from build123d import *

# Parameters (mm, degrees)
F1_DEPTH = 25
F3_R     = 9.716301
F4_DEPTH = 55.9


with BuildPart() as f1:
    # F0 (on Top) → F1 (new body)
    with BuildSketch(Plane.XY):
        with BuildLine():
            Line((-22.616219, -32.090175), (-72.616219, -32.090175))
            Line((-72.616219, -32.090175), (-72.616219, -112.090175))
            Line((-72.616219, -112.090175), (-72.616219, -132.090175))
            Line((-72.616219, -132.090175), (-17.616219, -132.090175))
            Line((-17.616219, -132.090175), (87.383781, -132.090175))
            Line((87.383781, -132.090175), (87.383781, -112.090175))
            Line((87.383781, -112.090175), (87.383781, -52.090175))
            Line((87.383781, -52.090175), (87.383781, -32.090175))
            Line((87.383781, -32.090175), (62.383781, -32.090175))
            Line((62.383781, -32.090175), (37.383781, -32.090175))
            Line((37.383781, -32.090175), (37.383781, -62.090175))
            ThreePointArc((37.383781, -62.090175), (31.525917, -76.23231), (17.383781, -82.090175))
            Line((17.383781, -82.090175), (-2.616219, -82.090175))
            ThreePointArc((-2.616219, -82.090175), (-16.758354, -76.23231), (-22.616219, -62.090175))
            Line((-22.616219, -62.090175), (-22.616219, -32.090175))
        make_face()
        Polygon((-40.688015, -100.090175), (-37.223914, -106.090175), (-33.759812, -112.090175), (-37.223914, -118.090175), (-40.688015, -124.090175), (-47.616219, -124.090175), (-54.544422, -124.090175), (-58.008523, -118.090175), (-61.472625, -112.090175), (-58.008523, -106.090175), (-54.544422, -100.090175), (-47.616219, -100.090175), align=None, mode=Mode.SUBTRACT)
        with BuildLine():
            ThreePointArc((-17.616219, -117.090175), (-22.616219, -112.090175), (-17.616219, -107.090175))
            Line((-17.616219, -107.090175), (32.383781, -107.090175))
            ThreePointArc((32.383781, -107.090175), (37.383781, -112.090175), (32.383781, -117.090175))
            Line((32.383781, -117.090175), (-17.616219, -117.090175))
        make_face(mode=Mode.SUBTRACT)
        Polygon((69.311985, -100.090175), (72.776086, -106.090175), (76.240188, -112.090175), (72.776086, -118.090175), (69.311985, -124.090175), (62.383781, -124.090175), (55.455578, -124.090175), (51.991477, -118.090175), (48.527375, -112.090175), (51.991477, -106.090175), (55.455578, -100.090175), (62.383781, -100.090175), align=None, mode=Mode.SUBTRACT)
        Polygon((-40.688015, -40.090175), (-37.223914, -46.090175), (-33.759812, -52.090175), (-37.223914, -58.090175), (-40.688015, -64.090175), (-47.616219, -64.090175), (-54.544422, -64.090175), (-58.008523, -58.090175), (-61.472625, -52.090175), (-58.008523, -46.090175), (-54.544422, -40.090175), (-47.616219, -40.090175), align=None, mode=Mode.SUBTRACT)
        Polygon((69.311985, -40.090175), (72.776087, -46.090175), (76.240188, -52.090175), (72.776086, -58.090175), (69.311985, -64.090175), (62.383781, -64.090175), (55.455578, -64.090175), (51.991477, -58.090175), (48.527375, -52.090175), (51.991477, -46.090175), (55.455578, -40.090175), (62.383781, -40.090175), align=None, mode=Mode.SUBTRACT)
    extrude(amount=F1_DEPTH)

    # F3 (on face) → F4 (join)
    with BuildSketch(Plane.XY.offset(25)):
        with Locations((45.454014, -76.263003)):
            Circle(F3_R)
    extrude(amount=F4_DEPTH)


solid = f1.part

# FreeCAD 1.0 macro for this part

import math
import FreeCAD as App
import Part
import Sketcher
from FreeCAD import Vector
Q = App.Units.Quantity


def add_polygon(sketch, points):
    """Adds a closed chain of lines whose ends are joined by coincident constraints."""
    first, n = sketch.GeometryCount, len(points)
    for a, b in zip(points, points[1:] + points[:1]):
        sketch.addGeometry(Part.LineSegment(App.Vector(*a, 0), App.Vector(*b, 0)), False)
    for i in range(n):
        sketch.addConstraint(Sketcher.Constraint("Coincident", first + i, 2, first + (i + 1) % n, 1))

doc = App.newDocument("Part")
body = doc.addObject("PartDesign::Body", "Body")

# Sketch on XY plane
sketch1 = body.newObject("Sketcher::SketchObject", "Sketch")
sketch1.AttachmentSupport = (doc.getObject("XY_Plane"), [""])
sketch1.MapMode = "FlatFace"
sketch1.addGeometry(Part.LineSegment(Vector(-23, -32, 0), Vector(-73, -32, 0)), False)  # 0
sketch1.addGeometry(Part.LineSegment(Vector(-73, -32, 0), Vector(-73, -132, 0)), False)  # 1
sketch1.addGeometry(Part.LineSegment(Vector(-73, -132, 0), Vector(87, -132, 0)), False)  # 2
sketch1.addGeometry(Part.LineSegment(Vector(87, -132, 0), Vector(87, -32, 0)), False)  # 3
sketch1.addGeometry(Part.LineSegment(Vector(87, -32, 0), Vector(37, -32, 0)), False)  # 4
sketch1.addGeometry(Part.LineSegment(Vector(37, -32, 0), Vector(37, -62, 0)), False)  # 5
sketch1.addGeometry(Part.ArcOfCircle(Part.Circle(Vector(17, -62, 0), Vector(0, 0, 1), 20), math.radians(-90), math.radians(0)), False)  # 6
sketch1.addGeometry(Part.LineSegment(Vector(17, -82, 0), Vector(-3, -82, 0)), False)  # 7
sketch1.addGeometry(Part.ArcOfCircle(Part.Circle(Vector(-3, -62, 0), Vector(0, 0, 1), 20), math.radians(-180), math.radians(-90)), False)  # 8
sketch1.addGeometry(Part.LineSegment(Vector(-23, -62, 0), Vector(-23, -32, 0)), False)  # 9
add_polygon(sketch1, [(-55, -100), (-41, -100), (-37, -106), (-34, -112), (-37, -118), (-41, -124), (-55, -124), (-58, -118), (-61, -112), (-58, -106)])  # lines 10-19
sketch1.addGeometry(Part.LineSegment(Vector(32, -117, 0), Vector(-18, -117, 0)), False)  # 20
sketch1.addGeometry(Part.ArcOfCircle(Part.Circle(Vector(-18, -112, 0), Vector(0, 0, 1), 5), math.radians(90), math.radians(270)), False)  # 21
sketch1.addGeometry(Part.LineSegment(Vector(-18, -107, 0), Vector(32, -107, 0)), False)  # 22
sketch1.addGeometry(Part.ArcOfCircle(Part.Circle(Vector(32, -112, 0), Vector(0, 0, 1), 5), math.radians(-90), math.radians(90)), False)  # 23
add_polygon(sketch1, [(55, -100), (69, -100), (73, -106), (76, -112), (73, -118), (69, -124), (55, -124), (52, -118), (49, -112), (52, -106)])  # lines 24-33
add_polygon(sketch1, [(-55, -40), (-41, -40), (-37, -46), (-34, -52), (-37, -58), (-41, -64), (-55, -64), (-58, -58), (-61, -52), (-58, -46)])  # lines 34-43
add_polygon(sketch1, [(55, -40), (69, -40), (73, -46), (76, -52), (73, -58), (69, -64), (55, -64), (52, -58), (49, -52), (52, -46)])  # lines 44-53
sketch1.addConstraint([
    Sketcher.Constraint("Coincident", 0, 2, 1, 1),
    Sketcher.Constraint("Coincident", 1, 2, 2, 1),
    Sketcher.Constraint("Coincident", 2, 2, 3, 1),
    Sketcher.Constraint("Coincident", 3, 2, 4, 1),
    Sketcher.Constraint("Coincident", 4, 2, 5, 1),
    Sketcher.Constraint("Tangent", 5, 2, 6, 2),
    Sketcher.Constraint("Tangent", 6, 1, 7, 1),
    Sketcher.Constraint("Tangent", 7, 2, 8, 2),
    Sketcher.Constraint("Tangent", 8, 1, 9, 1),
    Sketcher.Constraint("Coincident", 9, 2, 0, 1),
    Sketcher.Constraint("Tangent", 20, 2, 21, 2),
    Sketcher.Constraint("Tangent", 21, 1, 22, 1),
    Sketcher.Constraint("Tangent", 22, 2, 23, 2),
    Sketcher.Constraint("Tangent", 23, 1, 20, 1),
    Sketcher.Constraint("Horizontal", 0),
    Sketcher.Constraint("Vertical", 1),
    Sketcher.Constraint("Horizontal", 2),
    Sketcher.Constraint("Vertical", 3),
    Sketcher.Constraint("Horizontal", 4),
    Sketcher.Constraint("Vertical", 5),
    Sketcher.Constraint("Horizontal", 7),
    Sketcher.Constraint("Vertical", 9),
    Sketcher.Constraint("Horizontal", 10),
    Sketcher.Constraint("Horizontal", 15),
    Sketcher.Constraint("Horizontal", 20),
    Sketcher.Constraint("Horizontal", 22),
    Sketcher.Constraint("Horizontal", 24),
    Sketcher.Constraint("Horizontal", 29),
    Sketcher.Constraint("Horizontal", 34),
    Sketcher.Constraint("Horizontal", 39),
    Sketcher.Constraint("Horizontal", 44),
    Sketcher.Constraint("Horizontal", 49),
    Sketcher.Constraint("Equal", 6, 8),
    Sketcher.Constraint("Parallel", 11, 12),
    Sketcher.Constraint("Parallel", 13, 14),
    Sketcher.Constraint("Parallel", 12, 16),
    Sketcher.Constraint("Parallel", 16, 17),
    Sketcher.Constraint("Parallel", 14, 18),
    Sketcher.Constraint("Parallel", 18, 19),
    Sketcher.Constraint("Parallel", 17, 25),
    Sketcher.Constraint("Parallel", 25, 26),
    Sketcher.Constraint("Parallel", 19, 27),
    Sketcher.Constraint("Parallel", 27, 28),
    Sketcher.Constraint("Parallel", 26, 30),
    Sketcher.Constraint("Parallel", 30, 31),
    Sketcher.Constraint("Parallel", 28, 32),
    Sketcher.Constraint("Parallel", 32, 33),
    Sketcher.Constraint("Parallel", 31, 35),
    Sketcher.Constraint("Parallel", 35, 36),
    Sketcher.Constraint("Parallel", 33, 37),
    Sketcher.Constraint("Parallel", 37, 38),
    Sketcher.Constraint("Parallel", 36, 40),
    Sketcher.Constraint("Parallel", 40, 41),
    Sketcher.Constraint("Parallel", 38, 42),
    Sketcher.Constraint("Parallel", 42, 43),
    Sketcher.Constraint("Parallel", 41, 45),
    Sketcher.Constraint("Parallel", 45, 46),
    Sketcher.Constraint("Parallel", 43, 47),
    Sketcher.Constraint("Parallel", 47, 48),
    Sketcher.Constraint("Parallel", 46, 50),
    Sketcher.Constraint("Parallel", 50, 51),
    Sketcher.Constraint("Parallel", 48, 52),
    Sketcher.Constraint("Parallel", 52, 53),
    Sketcher.Constraint("Horizontal", 0, 2, 3, 2),
    Sketcher.Constraint("Horizontal", 23, 3, 12, 2),
    Sketcher.Constraint("Horizontal", 13, 2, 16, 2),
    Sketcher.Constraint("Horizontal", 12, 2, 17, 2),
    Sketcher.Constraint("Horizontal", 11, 2, 18, 2),
    Sketcher.Constraint("Horizontal", 19, 2, 24, 2),
    Sketcher.Constraint("Horizontal", 18, 2, 25, 2),
    Sketcher.Constraint("Horizontal", 17, 2, 26, 2),
    Sketcher.Constraint("Horizontal", 16, 2, 27, 2),
    Sketcher.Constraint("Horizontal", 15, 2, 28, 2),
    Sketcher.Constraint("Horizontal", 27, 2, 30, 2),
    Sketcher.Constraint("Horizontal", 26, 2, 31, 2),
    Sketcher.Constraint("Horizontal", 25, 2, 32, 2),
    Sketcher.Constraint("Horizontal", 37, 2, 40, 2),
    Sketcher.Constraint("Horizontal", 36, 2, 41, 2),
    Sketcher.Constraint("Horizontal", 35, 2, 42, 2),
    Sketcher.Constraint("Horizontal", 43, 2, 44, 2),
    Sketcher.Constraint("Horizontal", 42, 2, 45, 2),
    Sketcher.Constraint("Horizontal", 41, 2, 46, 2),
    Sketcher.Constraint("Horizontal", 40, 2, 47, 2),
    Sketcher.Constraint("Horizontal", 39, 2, 48, 2),
    Sketcher.Constraint("Horizontal", 47, 2, 50, 2),
    Sketcher.Constraint("Horizontal", 46, 2, 51, 2),
    Sketcher.Constraint("Horizontal", 45, 2, 52, 2),
    Sketcher.Constraint("Vertical", 11, 2, 13, 2),
    Sketcher.Constraint("Vertical", 10, 2, 14, 2),
    Sketcher.Constraint("Vertical", 16, 2, 18, 2),
    Sketcher.Constraint("Vertical", 14, 2, 34, 2),
    Sketcher.Constraint("Vertical", 13, 2, 35, 2),
    Sketcher.Constraint("Vertical", 12, 2, 36, 2),
    Sketcher.Constraint("Vertical", 35, 2, 37, 2),
    Sketcher.Constraint("Vertical", 34, 2, 38, 2),
    Sketcher.Constraint("Vertical", 19, 2, 39, 2),
    Sketcher.Constraint("Vertical", 28, 2, 44, 2),
    Sketcher.Constraint("Vertical", 33, 2, 49, 2),
    Sketcher.Constraint("Equal", 0, 4),
    Sketcher.Constraint("Equal", 4, 20),
    Sketcher.Constraint("Equal", 15, 24),
    Sketcher.Constraint("Equal", 11, 12),
    Sketcher.Constraint("Radius", 6, 20.0),
    Sketcher.Constraint("Radius", 21, 5.0),
    Sketcher.Constraint("DistanceX", 0, 2, 0, 1, 50.0),
    Sketcher.Constraint("DistanceX", 2, 1, 2, 2, 160.0),
    Sketcher.Constraint("DistanceY", 1, 2, 1, 1, 100.0),
    Sketcher.Constraint("DistanceY", 5, 2, 5, 1, 30.0),
    Sketcher.Constraint("Angle", 11, Q("-60.000004 deg")),
    Sketcher.Constraint("DistanceX", 21, 3, 6, 3, 35.0),
    Sketcher.Constraint("DistanceY", 21, 3, 6, 3, 50.0),
    Sketcher.Constraint("DistanceY", 21, 3, 10, 2, 12.0),
    Sketcher.Constraint("DistanceY", 34, 2, 9, 2, 8.0),
    Sketcher.Constraint("DistanceX", 10, 2, 8, 3, 38.071798),
    Sketcher.Constraint("DistanceX", 10, 1, 10, 2, 13.856407),
    Sketcher.Constraint("DistanceX", -1, 1, 6, 3, 17.383781),
    Sketcher.Constraint("DistanceX", -1, 1, 26, 2, 76.240188),
    Sketcher.Constraint("DistanceY", 6, 3, -1, 1, 62.090175),
])
pad1 = body.newObject("PartDesign::Pad", "Pad")
pad1.Profile = sketch1
pad1.Length = 25

# Sketch on XY plane
sketch2 = body.newObject("Sketcher::SketchObject", "Sketch001")
sketch2.AttachmentSupport = (doc.getObject("XY_Plane"), [""])
sketch2.MapMode = "FlatFace"
sketch2.AttachmentOffset = App.Placement(Vector(0, 0, 25), App.Rotation())
sketch2.addGeometry(Part.Circle(Vector(45, -76, 0), Vector(0, 0, 1), 10), False)
sketch2.addConstraint([
    Sketcher.Constraint("Diameter", 0, 19.432602),
    Sketcher.Constraint("DistanceX", -1, 1, 0, 3, 45.454014),
    Sketcher.Constraint("DistanceY", 0, 3, -1, 1, 76.263003),
])
pad2 = body.newObject("PartDesign::Pad", "Pad001")
pad2.Profile = sketch2
pad2.Length = 55.9

doc.recompute()
